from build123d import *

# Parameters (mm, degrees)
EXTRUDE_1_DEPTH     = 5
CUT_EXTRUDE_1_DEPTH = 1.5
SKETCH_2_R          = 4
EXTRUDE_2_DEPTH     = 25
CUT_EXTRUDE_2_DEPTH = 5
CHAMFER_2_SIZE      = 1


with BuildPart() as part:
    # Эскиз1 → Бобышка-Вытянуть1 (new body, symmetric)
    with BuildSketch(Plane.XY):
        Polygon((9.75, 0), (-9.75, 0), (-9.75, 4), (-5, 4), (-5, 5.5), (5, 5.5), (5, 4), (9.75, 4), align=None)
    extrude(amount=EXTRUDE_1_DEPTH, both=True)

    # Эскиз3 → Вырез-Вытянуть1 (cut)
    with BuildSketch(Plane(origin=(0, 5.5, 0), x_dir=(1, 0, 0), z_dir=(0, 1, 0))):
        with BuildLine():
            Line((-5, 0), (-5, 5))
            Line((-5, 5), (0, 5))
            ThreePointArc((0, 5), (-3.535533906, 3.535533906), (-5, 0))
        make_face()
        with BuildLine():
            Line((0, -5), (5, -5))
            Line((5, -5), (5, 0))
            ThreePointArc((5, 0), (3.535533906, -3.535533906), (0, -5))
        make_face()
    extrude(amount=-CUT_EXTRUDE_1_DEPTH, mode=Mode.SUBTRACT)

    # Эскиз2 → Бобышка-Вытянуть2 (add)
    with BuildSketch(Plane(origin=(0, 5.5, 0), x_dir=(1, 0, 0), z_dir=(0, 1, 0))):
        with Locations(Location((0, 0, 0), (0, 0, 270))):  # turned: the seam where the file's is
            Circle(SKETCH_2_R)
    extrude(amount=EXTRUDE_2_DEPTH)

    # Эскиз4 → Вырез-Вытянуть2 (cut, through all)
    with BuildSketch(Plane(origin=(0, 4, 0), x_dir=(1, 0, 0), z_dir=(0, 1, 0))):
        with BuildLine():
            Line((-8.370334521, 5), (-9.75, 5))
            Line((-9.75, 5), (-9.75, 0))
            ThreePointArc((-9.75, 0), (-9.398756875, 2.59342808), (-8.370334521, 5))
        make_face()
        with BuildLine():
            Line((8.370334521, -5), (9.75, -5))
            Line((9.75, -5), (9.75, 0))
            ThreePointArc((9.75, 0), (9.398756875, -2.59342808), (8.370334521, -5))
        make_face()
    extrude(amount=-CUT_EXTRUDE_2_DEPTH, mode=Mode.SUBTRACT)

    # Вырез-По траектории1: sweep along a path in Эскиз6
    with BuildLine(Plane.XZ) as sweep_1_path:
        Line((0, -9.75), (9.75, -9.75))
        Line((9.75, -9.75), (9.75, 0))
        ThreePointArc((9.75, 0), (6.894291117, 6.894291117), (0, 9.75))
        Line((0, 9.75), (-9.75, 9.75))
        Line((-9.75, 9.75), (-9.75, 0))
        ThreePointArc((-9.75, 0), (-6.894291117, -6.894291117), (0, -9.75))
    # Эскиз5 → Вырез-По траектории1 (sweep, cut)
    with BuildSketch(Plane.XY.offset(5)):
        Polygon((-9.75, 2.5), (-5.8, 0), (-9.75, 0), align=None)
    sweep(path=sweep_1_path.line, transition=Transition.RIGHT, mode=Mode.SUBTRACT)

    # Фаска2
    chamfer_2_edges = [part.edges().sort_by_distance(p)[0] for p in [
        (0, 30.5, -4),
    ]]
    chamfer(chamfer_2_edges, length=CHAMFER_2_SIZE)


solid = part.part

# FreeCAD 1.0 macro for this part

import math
import FreeCAD as App
import Part
import Sketcher
from FreeCAD import Vector


def edges_at(feature, points):
    """Names of the edges that pass closest to the given points."""
    edges = feature.Shape.Edges
    near = lambda p: min(range(len(edges)), key=lambda i: edges[i].distToShape(Part.Vertex(*p))[0])
    return sorted({f"Edge{near(p) + 1}" for p in points})


def add_polygon(sketch, points):
    """Adds a closed chain of lines whose ends are joined by coincident constraints."""
    first, n = sketch.GeometryCount, len(points)
    for a, b in zip(points, points[1:] + points[:1]):
        sketch.addGeometry(Part.LineSegment(App.Vector(*a, 0), App.Vector(*b, 0)), False)
    for i in range(n):
        sketch.addConstraint(Sketcher.Constraint("Coincident", first + i, 2, first + (i + 1) % n, 1))

doc = App.newDocument("Part")
body = doc.addObject("PartDesign::Body", "Body")

sketch1 = body.newObject("Sketcher::SketchObject", "Sketch")
sketch1.AttachmentSupport = (doc.getObject("XY_Plane"), [""])
sketch1.MapMode = "FlatFace"
add_polygon(sketch1, [(-9.8, 0), (9.8, 0), (9.8, 4), (5, 4), (5, 5.5), (-5, 5.5), (-5, 4), (-9.8, 4)])
sketch1.addConstraint([
    Sketcher.Constraint("Horizontal", 0),
    Sketcher.Constraint("Vertical", 1),
    Sketcher.Constraint("Horizontal", 2),
    Sketcher.Constraint("Vertical", 3),
    Sketcher.Constraint("Horizontal", 4),
    Sketcher.Constraint("Vertical", 5),
    Sketcher.Constraint("Horizontal", 6),
    Sketcher.Constraint("Vertical", 7),
    Sketcher.Constraint("Symmetric", 0, 2, 7, 2, -1, 1),
    Sketcher.Constraint("Symmetric", 2, 2, 5, 2, -2),
    Sketcher.Constraint("DistanceX", 4, 2, 4, 1, 10.0),
    Sketcher.Constraint("DistanceY", 1, 1, 1, 2, 4.0),
    Sketcher.Constraint("DistanceX", 0, 1, 0, 2, 19.5),
    Sketcher.Constraint("DistanceY", 3, 1, 3, 2, 1.5),
])
pad1 = body.newObject("PartDesign::Pad", "Pad")
pad1.Profile = sketch1
pad1.Length = 10
pad1.Midplane = True

sketch2 = body.newObject("Sketcher::SketchObject", "Sketch001")
sketch2.AttachmentSupport = (doc.getObject("XZ_Plane"), [""])
sketch2.MapMode = "FlatFace"
sketch2.AttachmentOffset = App.Placement(Vector(0, 0, -5.5), App.Rotation())
sketch2.addGeometry([
    Part.LineSegment(Vector(-5, -5, 0), Vector(-5, 0, 0)),
    Part.ArcOfCircle(Part.Circle(Vector(0, 0, 0), Vector(0, 0, 1), 5), math.radians(180), math.radians(270)),
    Part.LineSegment(Vector(0, -5, 0), Vector(-5, -5, 0)),
    Part.LineSegment(Vector(0, 5, 0), Vector(5, 5, 0)),
    Part.LineSegment(Vector(5, 5, 0), Vector(5, 0, 0)),
    Part.ArcOfCircle(Part.Circle(Vector(0, 0, 0), Vector(0, 0, 1), 5), math.radians(0), math.radians(90)),
], False)
sketch2.addConstraint([
    Sketcher.Constraint("Tangent", 0, 2, 1, 1),
    Sketcher.Constraint("Tangent", 1, 2, 2, 1),
    Sketcher.Constraint("Coincident", 2, 2, 0, 1),
    Sketcher.Constraint("Coincident", 3, 2, 4, 1),
    Sketcher.Constraint("Tangent", 4, 2, 5, 1),
    Sketcher.Constraint("Tangent", 5, 2, 3, 1),
    Sketcher.Constraint("Vertical", 0),
    Sketcher.Constraint("Horizontal", 2),
    Sketcher.Constraint("Horizontal", 3),
    Sketcher.Constraint("Vertical", 4),
    Sketcher.Constraint("Coincident", 1, 3, -1, 1),
    Sketcher.Constraint("Coincident", 5, 3, -1, 1),
    Sketcher.Constraint("Equal", 1, 5),
    Sketcher.Constraint("Radius", 1, 5.0),
])
pocket1 = body.newObject("PartDesign::Pocket", "Pocket")
pocket1.Profile = sketch2
pocket1.Length = 1.5
pocket1.Reversed = True

sketch3 = body.newObject("Sketcher::SketchObject", "Sketch002")
sketch3.AttachmentSupport = (doc.getObject("XZ_Plane"), [""])
sketch3.MapMode = "FlatFace"
sketch3.AttachmentOffset = App.Placement(Vector(0, 0, -5.5), App.Rotation())
sketch3.addGeometry(Part.Circle(Vector(0, 0, 0), Vector(0, 0, 1), 4), False)
sketch3.addConstraint([
    Sketcher.Constraint("Coincident", 0, 3, -1, 1),
    Sketcher.Constraint("Diameter", 0, 8.0),
])
pad2 = body.newObject("PartDesign::Pad", "Pad001")
pad2.Profile = sketch3
pad2.Length = 25
pad2.Reversed = True

sketch4 = body.newObject("Sketcher::SketchObject", "Sketch003")
sketch4.AttachmentSupport = (doc.getObject("XZ_Plane"), [""])
sketch4.MapMode = "FlatFace"
sketch4.AttachmentOffset = App.Placement(Vector(0, 0, -4), App.Rotation())
sketch4.addGeometry([
    Part.LineSegment(Vector(-8.4, -5, 0), Vector(-9.8, -5, 0)),
    Part.LineSegment(Vector(-9.8, -5, 0), Vector(-9.8, 0, 0)),
    Part.ArcOfCircle(Part.Circle(Vector(0, 0, 0), Vector(0, 0, 1), 9.7), math.radians(180), math.radians(211)),
    Part.LineSegment(Vector(8.4, 5, 0), Vector(9.8, 5, 0)),
    Part.LineSegment(Vector(9.8, 5, 0), Vector(9.8, 0, 0)),
    Part.ArcOfCircle(Part.Circle(Vector(0, 0, 0), Vector(0, 0, 1), 9.7), math.radians(0), math.radians(31)),
], False)
sketch4.addConstraint([
    Sketcher.Constraint("Coincident", 0, 2, 1, 1),
    Sketcher.Constraint("Tangent", 1, 2, 2, 1),
    Sketcher.Constraint("Coincident", 2, 2, 0, 1),
    Sketcher.Constraint("Coincident", 3, 2, 4, 1),
    Sketcher.Constraint("Tangent", 4, 2, 5, 1),
    Sketcher.Constraint("Coincident", 5, 2, 3, 1),
    Sketcher.Constraint("Horizontal", 0),
    Sketcher.Constraint("Vertical", 1),
    Sketcher.Constraint("Horizontal", 3),
    Sketcher.Constraint("Vertical", 4),
    Sketcher.Constraint("Coincident", 2, 3, -1, 1),
    Sketcher.Constraint("Coincident", 5, 3, -1, 1),
    Sketcher.Constraint("Equal", 2, 5),
    Sketcher.Constraint("Equal", 0, 3),
    Sketcher.Constraint("DistanceY", 1, 1, 1, 2, 5.0),
    Sketcher.Constraint("Radius", 2, 9.75),
])
pocket2 = body.newObject("PartDesign::Pocket", "Pocket001")
pocket2.Profile = sketch4
pocket2.Type = "ThroughAll"
pocket2.Reversed = True

sketch5 = body.newObject("Sketcher::SketchObject", "Sketch004")
sketch5.AttachmentSupport = (doc.getObject("XY_Plane"), [""])
sketch5.MapMode = "FlatFace"
sketch5.AttachmentOffset = App.Placement(Vector(0, 0, 5), App.Rotation())
add_polygon(sketch5, [(-5.8, 0), (-9.8, 2.5), (-9.8, 0)])
sketch5.addConstraint([
    Sketcher.Constraint("Vertical", 1),
    Sketcher.Constraint("Horizontal", 2),
    Sketcher.Constraint("PointOnObject", 1, 2, -1),
    Sketcher.Constraint("DistanceY", 1, 2, 1, 1, 2.5),
    Sketcher.Constraint("DistanceX", 2, 1, 2, 2, 3.95),
    Sketcher.Constraint("DistanceX", 2, 2, -1, 1, 5.8),
])

sketch6 = body.newObject("Sketcher::SketchObject", "Sketch005")
sketch6.AttachmentSupport = (doc.getObject("XZ_Plane"), [""])
sketch6.MapMode = "FlatFace"
sketch6.addGeometry([
    Part.LineSegment(Vector(0, -10, 0), Vector(10, -10, 0)),
    Part.LineSegment(Vector(10, -10, 0), Vector(10, 0, 0)),
    Part.ArcOfCircle(Part.Circle(Vector(0, 0, 0), Vector(0, 0, 1), 10), math.radians(0), math.radians(90)),
    Part.LineSegment(Vector(0, 10, 0), Vector(-10, 10, 0)),
    Part.LineSegment(Vector(-10, 10, 0), Vector(-10, 0, 0)),
    Part.ArcOfCircle(Part.Circle(Vector(0, 0, 0), Vector(0, 0, 1), 10), math.radians(180), math.radians(270)),
], False)
sketch6.addConstraint([
    Sketcher.Constraint("Coincident", 0, 2, 1, 1),
    Sketcher.Constraint("Tangent", 1, 2, 2, 1),
    Sketcher.Constraint("Tangent", 2, 2, 3, 1),
    Sketcher.Constraint("Coincident", 3, 2, 4, 1),
    Sketcher.Constraint("Tangent", 4, 2, 5, 1),
    Sketcher.Constraint("Tangent", 5, 2, 0, 1),
    Sketcher.Constraint("Horizontal", 0),
    Sketcher.Constraint("Vertical", 1),
    Sketcher.Constraint("Horizontal", 3),
    Sketcher.Constraint("Vertical", 4),
    Sketcher.Constraint("Coincident", 2, 3, -1, 1),
    Sketcher.Constraint("Coincident", 5, 3, -1, 1),
    Sketcher.Constraint("Equal", 2, 5),
    Sketcher.Constraint("Radius", 2, 9.75),
])
doc.recompute()

subtractivepipe = body.newObject("PartDesign::SubtractivePipe", "SubtractivePipe")
subtractivepipe.Profile = sketch5
subtractivepipe.Spine = (sketch6, ["Edge1", "Edge2", "Edge3", "Edge4", "Edge5", "Edge6"])
subtractivepipe.Transition = "Right corner"
doc.recompute()

chamfer = body.newObject("PartDesign::Chamfer", "Chamfer")
chamfer.Base = (subtractivepipe, edges_at(subtractivepipe, [(0, 30.5, -4)]))
chamfer.Size = 1

doc.recompute()
